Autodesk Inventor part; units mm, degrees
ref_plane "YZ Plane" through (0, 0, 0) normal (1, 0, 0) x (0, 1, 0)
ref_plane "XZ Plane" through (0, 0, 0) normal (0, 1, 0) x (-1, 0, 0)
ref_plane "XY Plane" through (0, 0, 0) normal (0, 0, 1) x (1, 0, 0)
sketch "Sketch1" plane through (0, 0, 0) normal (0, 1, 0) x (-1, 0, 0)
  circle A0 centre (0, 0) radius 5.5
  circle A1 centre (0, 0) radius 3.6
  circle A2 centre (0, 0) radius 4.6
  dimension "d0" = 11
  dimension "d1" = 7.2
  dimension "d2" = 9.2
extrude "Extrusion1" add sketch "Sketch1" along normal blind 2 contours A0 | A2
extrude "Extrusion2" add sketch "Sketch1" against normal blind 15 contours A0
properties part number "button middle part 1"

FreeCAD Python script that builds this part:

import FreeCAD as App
import Part
import Sketcher
from FreeCAD import Vector
Q = App.Units.Quantity

doc = App.newDocument("Part")
body = doc.addObject("PartDesign::Body", "Body")

sketch1 = body.newObject("Sketcher::SketchObject", "Sketch")
sketch1.AttachmentSupport = (doc.getObject("XZ_Plane"), [""])
sketch1.MapMode = "FlatFace"
sketch1.addGeometry(Part.Circle(Vector(0, 0, 0), Vector(0, 0, 1), 5.5), False)
sketch1.addGeometry(Part.Circle(Vector(0, 0, 0), Vector(0, 0, 1), 3.6), False)
sketch1.addConstraint(Sketcher.Constraint("Coincident", 0, 3, -1, 1))
sketch1.addConstraint(Sketcher.Constraint("Coincident", 1, 3, -1, 1))
sketch1.addConstraint(Sketcher.Constraint("Diameter", 0, Q("11 mm")))
sketch1.addConstraint(Sketcher.Constraint("Diameter", 1, Q("7.2 mm")))
pad1 = body.newObject("PartDesign::Pad", "Pad")
pad1.Profile = sketch1
pad1.Length = 2
pad1.Reversed = True

sketch2 = body.newObject("Sketcher::SketchObject", "Sketch001")
sketch2.AttachmentSupport = (doc.getObject("XZ_Plane"), [""])
sketch2.MapMode = "FlatFace"
sketch2.addGeometry(Part.Circle(Vector(0, 0, 0), Vector(0, 0, 1), 5.5), False)
sketch2.addGeometry(Part.Circle(Vector(0, 0, 0), Vector(0, 0, 1), 4.6), False)
sketch2.addConstraint(Sketcher.Constraint("Coincident", 0, 3, -1, 1))
sketch2.addConstraint(Sketcher.Constraint("Coincident", 1, 3, -1, 1))
sketch2.addConstraint(Sketcher.Constraint("Diameter", 0, Q("11 mm")))
sketch2.addConstraint(Sketcher.Constraint("Diameter", 1, Q("9.2 mm")))
pad2 = body.newObject("PartDesign::Pad", "Pad001")
pad2.Profile = sketch2
pad2.Length = 15

doc.recompute()
